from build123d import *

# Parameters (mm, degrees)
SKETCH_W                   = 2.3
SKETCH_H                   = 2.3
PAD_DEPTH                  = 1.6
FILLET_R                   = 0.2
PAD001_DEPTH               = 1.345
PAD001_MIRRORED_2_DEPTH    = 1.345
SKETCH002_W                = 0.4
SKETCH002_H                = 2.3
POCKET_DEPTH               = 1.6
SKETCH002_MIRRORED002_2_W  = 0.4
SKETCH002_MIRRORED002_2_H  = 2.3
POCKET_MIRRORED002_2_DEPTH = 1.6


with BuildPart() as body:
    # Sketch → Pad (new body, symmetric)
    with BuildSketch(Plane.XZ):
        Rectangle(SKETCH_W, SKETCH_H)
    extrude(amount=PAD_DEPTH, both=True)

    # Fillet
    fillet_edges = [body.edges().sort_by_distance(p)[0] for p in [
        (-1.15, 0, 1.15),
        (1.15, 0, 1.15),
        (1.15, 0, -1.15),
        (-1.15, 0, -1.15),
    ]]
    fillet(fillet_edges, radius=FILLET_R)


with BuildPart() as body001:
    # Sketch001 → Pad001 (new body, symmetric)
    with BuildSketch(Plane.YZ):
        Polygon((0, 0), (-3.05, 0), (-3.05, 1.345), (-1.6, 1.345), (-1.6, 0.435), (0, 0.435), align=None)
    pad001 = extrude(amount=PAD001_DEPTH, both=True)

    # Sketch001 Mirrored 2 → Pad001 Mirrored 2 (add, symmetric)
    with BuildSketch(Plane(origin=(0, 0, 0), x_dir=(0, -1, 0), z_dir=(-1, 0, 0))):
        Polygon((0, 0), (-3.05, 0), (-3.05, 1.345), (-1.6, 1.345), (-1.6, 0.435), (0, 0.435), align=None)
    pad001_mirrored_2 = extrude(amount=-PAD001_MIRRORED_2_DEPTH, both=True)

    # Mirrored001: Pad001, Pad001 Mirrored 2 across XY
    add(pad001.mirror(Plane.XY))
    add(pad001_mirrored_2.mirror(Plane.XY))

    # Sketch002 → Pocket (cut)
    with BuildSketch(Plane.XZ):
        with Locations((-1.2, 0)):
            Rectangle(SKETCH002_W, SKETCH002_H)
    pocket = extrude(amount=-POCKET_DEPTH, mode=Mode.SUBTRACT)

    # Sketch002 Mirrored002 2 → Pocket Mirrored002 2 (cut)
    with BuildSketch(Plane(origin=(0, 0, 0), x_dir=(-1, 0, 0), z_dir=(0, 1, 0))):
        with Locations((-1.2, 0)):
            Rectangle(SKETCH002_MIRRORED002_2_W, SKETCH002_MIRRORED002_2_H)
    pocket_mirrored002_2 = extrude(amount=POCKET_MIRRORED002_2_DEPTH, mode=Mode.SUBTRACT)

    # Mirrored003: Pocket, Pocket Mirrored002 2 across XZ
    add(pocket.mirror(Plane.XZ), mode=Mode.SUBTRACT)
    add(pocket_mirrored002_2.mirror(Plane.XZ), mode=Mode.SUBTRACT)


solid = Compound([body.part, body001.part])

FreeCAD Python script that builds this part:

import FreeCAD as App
import Part
import Sketcher
Q = App.Units.Quantity


def edges_at(feature, points):
    """Names of the edges that pass closest to the given points."""
    edges = feature.Shape.Edges
    near = lambda p: min(range(len(edges)), key=lambda i: edges[i].distToShape(Part.Vertex(*p))[0])
    return sorted({f"Edge{near(p) + 1}" for p in points})

doc = App.newDocument("Part")
params = doc.addObject("Spreadsheet::Sheet", "Params")
for row, (alias, value) in enumerate([
    ("sketch1_width", "2.3 mm"),
    ("pad1_length", "3.2 mm"),
    ("fillet_radius", "0.2 mm"),
    ("sketch2_width", "1.6 mm"),
    ("sketch2_width2", "3.05 mm"),
    ("sketch2_height", "0.91 mm"),
    ("pad2_length", "2.69 mm"),
    ("sketch3_width", "1.6 mm"),
    ("sketch3_width2", "3.05 mm"),
    ("sketch3_height", "0.91 mm"),
    ("pad3_length", "2.69 mm"),
    ("sketch4_width", "0.4 mm"),
    ("sketch4_height", "2.3 mm"),
    ("pocket1_length", "1.6 mm"),
    ("sketch5_width", "0.4 mm"),
    ("sketch5_height", "2.3 mm"),
    ("pocket2_length", "1.6 mm"),
], start=1):
    params.set(f"A{row}", alias)
    params.set(f"B{row}", "=" + value)
    params.setAlias(f"B{row}", alias)

body = doc.addObject("PartDesign::Body", "Body")

# Sketch on XZ plane
sketch1 = body.newObject("Sketcher::SketchObject", "Sketch")
sketch1.AttachmentSupport = (doc.getObject("XZ_Plane"), [""])
sketch1.MapMode = "FlatFace"
sketch1.addGeometry(Part.LineSegment(App.Vector(-1.1, 1.1, 0), App.Vector(-1.1, -1.1, 0)), False)
sketch1.addGeometry(Part.LineSegment(App.Vector(-1.1, -1.1, 0), App.Vector(1.1, -1.1, 0)), False)
sketch1.addGeometry(Part.LineSegment(App.Vector(1.1, -1.1, 0), App.Vector(1.1, 1.1, 0)), False)
sketch1.addGeometry(Part.LineSegment(App.Vector(1.1, 1.1, 0), App.Vector(-1.1, 1.1, 0)), False)
sketch1.addConstraint(Sketcher.Constraint("Coincident", 0, 2, 1, 1))
sketch1.addConstraint(Sketcher.Constraint("Coincident", 1, 2, 2, 1))
sketch1.addConstraint(Sketcher.Constraint("Coincident", 2, 2, 3, 1))
sketch1.addConstraint(Sketcher.Constraint("Coincident", 3, 2, 0, 1))
sketch1.addConstraint(Sketcher.Constraint("Vertical", 0))
sketch1.addConstraint(Sketcher.Constraint("Horizontal", 1))
sketch1.addConstraint(Sketcher.Constraint("Vertical", 2))
sketch1.addConstraint(Sketcher.Constraint("Horizontal", 3))
sketch1.addConstraint(Sketcher.Constraint("Symmetric", 0, 2, 2, 2, -1, 1))
sketch1.addConstraint(Sketcher.Constraint("Equal", 3, 0))
sketch1.addConstraint(Sketcher.Constraint("DistanceX", 1, 1, 1, 2, Q("2.3 mm")))
sketch1.setExpression("Constraints[10]", "Params.sketch1_width")
pad1 = body.newObject("PartDesign::Pad", "Pad")
pad1.Profile = sketch1
pad1.setExpression("Length", "Params.pad1_length")
pad1.Midplane = True
doc.recompute()

fillet = body.newObject("PartDesign::Fillet", "Fillet")
fillet.Base = (pad1, edges_at(pad1, [
    (-1.15, 0, 1.15),
    (1.15, 0, 1.15),
    (1.15, 0, -1.15),
    (-1.15, 0, -1.15),
]))
fillet.setExpression("Radius", "Params.fillet_radius")
body2 = doc.addObject("PartDesign::Body", "Body001")

# Sketch on YZ plane
sketch2 = body2.newObject("Sketcher::SketchObject", "Sketch001")
sketch2.AttachmentSupport = (doc.getObject("YZ_Plane001"), [""])
sketch2.MapMode = "FlatFace"
sketch2.addGeometry(Part.LineSegment(App.Vector(-3.05, 0, 0), App.Vector(0, 0, 0)), False)
sketch2.addGeometry(Part.LineSegment(App.Vector(0, 0, 0), App.Vector(0, 0.43, 0)), False)
sketch2.addGeometry(Part.LineSegment(App.Vector(0, 0.43, 0), App.Vector(-1.6, 0.43, 0)), False)
sketch2.addGeometry(Part.LineSegment(App.Vector(-1.6, 0.43, 0), App.Vector(-1.6, 1.34, 0)), False)
sketch2.addGeometry(Part.LineSegment(App.Vector(-1.6, 1.34, 0), App.Vector(-3.05, 1.34, 0)), False)
sketch2.addGeometry(Part.LineSegment(App.Vector(-3.05, 1.34, 0), App.Vector(-3.05, 0, 0)), False)
sketch2.addConstraint(Sketcher.Constraint("Coincident", 0, 2, 1, 1))
sketch2.addConstraint(Sketcher.Constraint("Coincident", 1, 2, 2, 1))
sketch2.addConstraint(Sketcher.Constraint("Coincident", 2, 2, 3, 1))
sketch2.addConstraint(Sketcher.Constraint("Coincident", 3, 2, 4, 1))
sketch2.addConstraint(Sketcher.Constraint("Coincident", 4, 2, 5, 1))
sketch2.addConstraint(Sketcher.Constraint("Coincident", 5, 2, 0, 1))
sketch2.addConstraint(Sketcher.Constraint("Horizontal", 0))
sketch2.addConstraint(Sketcher.Constraint("Vertical", 1))
sketch2.addConstraint(Sketcher.Constraint("Horizontal", 2))
sketch2.addConstraint(Sketcher.Constraint("Vertical", 3))
sketch2.addConstraint(Sketcher.Constraint("Horizontal", 4))
sketch2.addConstraint(Sketcher.Constraint("Vertical", 5))
sketch2.addConstraint(Sketcher.Constraint("Coincident", 0, 2, -1, 1))
sketch2.addConstraint(Sketcher.Constraint("DistanceX", 2, 2, 2, 1, Q("1.6 mm")))
sketch2.addConstraint(Sketcher.Constraint("DistanceX", 0, 1, 0, 2, Q("3.05 mm")))
sketch2.addConstraint(Sketcher.Constraint("DistanceY", 3, 1, 3, 2, Q("0.91 mm")))
sketch2.addConstraint(Sketcher.Constraint("DistanceY", 1, 1, 1, 2, Q("0.435 mm")))
sketch2.setExpression("Constraints[13]", "Params.sketch2_width")
sketch2.setExpression("Constraints[14]", "Params.sketch2_width2")
sketch2.setExpression("Constraints[15]", "Params.sketch2_height")
pad2 = body2.newObject("PartDesign::Pad", "Pad001")
pad2.Profile = sketch2
pad2.setExpression("Length", "Params.pad2_length")
pad2.Midplane = True

# Sketch on YZ plane
sketch3 = body2.newObject("Sketcher::SketchObject", "Sketch002")
sketch3.AttachmentSupport = (doc.getObject("YZ_Plane001"), [""])
sketch3.MapMode = "FlatFace"
sketch3.addGeometry(Part.LineSegment(App.Vector(3.05, 0, 0), App.Vector(0, 0, 0)), False)
sketch3.addGeometry(Part.LineSegment(App.Vector(0, 0, 0), App.Vector(0, 0.43, 0)), False)
sketch3.addGeometry(Part.LineSegment(App.Vector(0, 0.43, 0), App.Vector(1.6, 0.43, 0)), False)
sketch3.addGeometry(Part.LineSegment(App.Vector(1.6, 0.43, 0), App.Vector(1.6, 1.34, 0)), False)
sketch3.addGeometry(Part.LineSegment(App.Vector(1.6, 1.34, 0), App.Vector(3.05, 1.34, 0)), False)
sketch3.addGeometry(Part.LineSegment(App.Vector(3.05, 1.34, 0), App.Vector(3.05, 0, 0)), False)
sketch3.addConstraint(Sketcher.Constraint("Coincident", 0, 2, 1, 1))
sketch3.addConstraint(Sketcher.Constraint("Coincident", 1, 2, 2, 1))
sketch3.addConstraint(Sketcher.Constraint("Coincident", 2, 2, 3, 1))
sketch3.addConstraint(Sketcher.Constraint("Coincident", 3, 2, 4, 1))
sketch3.addConstraint(Sketcher.Constraint("Coincident", 4, 2, 5, 1))
sketch3.addConstraint(Sketcher.Constraint("Coincident", 5, 2, 0, 1))
sketch3.addConstraint(Sketcher.Constraint("Horizontal", 0))
sketch3.addConstraint(Sketcher.Constraint("Vertical", 1))
sketch3.addConstraint(Sketcher.Constraint("Horizontal", 2))
sketch3.addConstraint(Sketcher.Constraint("Vertical", 3))
sketch3.addConstraint(Sketcher.Constraint("Horizontal", 4))
sketch3.addConstraint(Sketcher.Constraint("Vertical", 5))
sketch3.addConstraint(Sketcher.Constraint("Coincident", 0, 2, -1, 1))
sketch3.addConstraint(Sketcher.Constraint("DistanceX", 2, 1, 2, 2, Q("1.6 mm")))
sketch3.addConstraint(Sketcher.Constraint("DistanceX", 0, 2, 0, 1, Q("3.05 mm")))
sketch3.addConstraint(Sketcher.Constraint("DistanceY", 3, 1, 3, 2, Q("0.91 mm")))
sketch3.addConstraint(Sketcher.Constraint("DistanceY", 1, 1, 1, 2, Q("0.435 mm")))
sketch3.setExpression("Constraints[13]", "Params.sketch3_width")
sketch3.setExpression("Constraints[14]", "Params.sketch3_width2")
sketch3.setExpression("Constraints[15]", "Params.sketch3_height")
pad3 = body2.newObject("PartDesign::Pad", "Pad002")
pad3.Profile = sketch3
pad3.setExpression("Length", "Params.pad3_length")
pad3.Midplane = True
doc.recompute()

mirrored = body2.newObject("PartDesign::Mirrored", "Mirrored")
mirrored.Originals = [pad2, pad3]
mirrored.MirrorPlane = (doc.getObject("XY_Plane001"), [""])
body2.Tip = mirrored

# Sketch on XZ plane
sketch4 = body2.newObject("Sketcher::SketchObject", "Sketch003")
sketch4.AttachmentSupport = (doc.getObject("XZ_Plane001"), [""])
sketch4.MapMode = "FlatFace"
sketch4.addGeometry(Part.LineSegment(App.Vector(-1.4, 1.15, 0), App.Vector(-1.4, -1.15, 0)), False)
sketch4.addGeometry(Part.LineSegment(App.Vector(-1.4, -1.15, 0), App.Vector(-1, -1.15, 0)), False)
sketch4.addGeometry(Part.LineSegment(App.Vector(-1, -1.15, 0), App.Vector(-1, 1.15, 0)), False)
sketch4.addGeometry(Part.LineSegment(App.Vector(-1, 1.15, 0), App.Vector(-1.4, 1.15, 0)), False)
sketch4.addConstraint(Sketcher.Constraint("Coincident", 0, 2, 1, 1))
sketch4.addConstraint(Sketcher.Constraint("Coincident", 1, 2, 2, 1))
sketch4.addConstraint(Sketcher.Constraint("Coincident", 2, 2, 3, 1))
sketch4.addConstraint(Sketcher.Constraint("Coincident", 3, 2, 0, 1))
sketch4.addConstraint(Sketcher.Constraint("Vertical", 0))
sketch4.addConstraint(Sketcher.Constraint("Horizontal", 1))
sketch4.addConstraint(Sketcher.Constraint("Vertical", 2))
sketch4.addConstraint(Sketcher.Constraint("Horizontal", 3))
sketch4.addConstraint(Sketcher.Constraint("DistanceX", 1, 1, 1, 2, Q("0.4 mm")))
sketch4.addConstraint(Sketcher.Constraint("DistanceY", 0, 2, 0, 1, Q("2.3 mm")))
sketch4.addConstraint(Sketcher.Constraint("DistanceX", 1, 2, -1, 1, Q("1 mm")))
sketch4.addConstraint(Sketcher.Constraint("DistanceY", 0, 2, -1, 1, Q("1.15 mm")))
sketch4.setExpression("Constraints[8]", "Params.sketch4_width")
sketch4.setExpression("Constraints[9]", "Params.sketch4_height")
pocket1 = body2.newObject("PartDesign::Pocket", "Pocket")
pocket1.Profile = sketch4
pocket1.setExpression("Length", "Params.pocket1_length")

# Sketch on XZ plane
sketch5 = body2.newObject("Sketcher::SketchObject", "Sketch004")
sketch5.AttachmentSupport = (doc.getObject("XZ_Plane001"), [""])
sketch5.MapMode = "FlatFace"
sketch5.addGeometry(Part.LineSegment(App.Vector(1.4, 1.15, 0), App.Vector(1.4, -1.15, 0)), False)
sketch5.addGeometry(Part.LineSegment(App.Vector(1.4, -1.15, 0), App.Vector(1, -1.15, 0)), False)
sketch5.addGeometry(Part.LineSegment(App.Vector(1, -1.15, 0), App.Vector(1, 1.15, 0)), False)
sketch5.addGeometry(Part.LineSegment(App.Vector(1, 1.15, 0), App.Vector(1.4, 1.15, 0)), False)
sketch5.addConstraint(Sketcher.Constraint("Coincident", 0, 2, 1, 1))
sketch5.addConstraint(Sketcher.Constraint("Coincident", 1, 2, 2, 1))
sketch5.addConstraint(Sketcher.Constraint("Coincident", 2, 2, 3, 1))
sketch5.addConstraint(Sketcher.Constraint("Coincident", 3, 2, 0, 1))
sketch5.addConstraint(Sketcher.Constraint("Vertical", 0))
sketch5.addConstraint(Sketcher.Constraint("Horizontal", 1))
sketch5.addConstraint(Sketcher.Constraint("Vertical", 2))
sketch5.addConstraint(Sketcher.Constraint("Horizontal", 3))
sketch5.addConstraint(Sketcher.Constraint("DistanceX", 1, 2, 1, 1, Q("0.4 mm")))
sketch5.addConstraint(Sketcher.Constraint("DistanceY", 0, 2, 0, 1, Q("2.3 mm")))
sketch5.addConstraint(Sketcher.Constraint("DistanceX", -1, 1, 1, 2, Q("1 mm")))
sketch5.addConstraint(Sketcher.Constraint("DistanceY", 0, 2, -1, 1, Q("1.15 mm")))
sketch5.setExpression("Constraints[8]", "Params.sketch5_width")
sketch5.setExpression("Constraints[9]", "Params.sketch5_height")
pocket2 = body2.newObject("PartDesign::Pocket", "Pocket001")
pocket2.Profile = sketch5
pocket2.setExpression("Length", "Params.pocket2_length")
doc.recompute()

mirrored2 = body2.newObject("PartDesign::Mirrored", "Mirrored001")
mirrored2.Originals = [pocket1, pocket2]
mirrored2.MirrorPlane = (doc.getObject("XZ_Plane001"), [""])
body2.Tip = mirrored2

doc.recompute()
